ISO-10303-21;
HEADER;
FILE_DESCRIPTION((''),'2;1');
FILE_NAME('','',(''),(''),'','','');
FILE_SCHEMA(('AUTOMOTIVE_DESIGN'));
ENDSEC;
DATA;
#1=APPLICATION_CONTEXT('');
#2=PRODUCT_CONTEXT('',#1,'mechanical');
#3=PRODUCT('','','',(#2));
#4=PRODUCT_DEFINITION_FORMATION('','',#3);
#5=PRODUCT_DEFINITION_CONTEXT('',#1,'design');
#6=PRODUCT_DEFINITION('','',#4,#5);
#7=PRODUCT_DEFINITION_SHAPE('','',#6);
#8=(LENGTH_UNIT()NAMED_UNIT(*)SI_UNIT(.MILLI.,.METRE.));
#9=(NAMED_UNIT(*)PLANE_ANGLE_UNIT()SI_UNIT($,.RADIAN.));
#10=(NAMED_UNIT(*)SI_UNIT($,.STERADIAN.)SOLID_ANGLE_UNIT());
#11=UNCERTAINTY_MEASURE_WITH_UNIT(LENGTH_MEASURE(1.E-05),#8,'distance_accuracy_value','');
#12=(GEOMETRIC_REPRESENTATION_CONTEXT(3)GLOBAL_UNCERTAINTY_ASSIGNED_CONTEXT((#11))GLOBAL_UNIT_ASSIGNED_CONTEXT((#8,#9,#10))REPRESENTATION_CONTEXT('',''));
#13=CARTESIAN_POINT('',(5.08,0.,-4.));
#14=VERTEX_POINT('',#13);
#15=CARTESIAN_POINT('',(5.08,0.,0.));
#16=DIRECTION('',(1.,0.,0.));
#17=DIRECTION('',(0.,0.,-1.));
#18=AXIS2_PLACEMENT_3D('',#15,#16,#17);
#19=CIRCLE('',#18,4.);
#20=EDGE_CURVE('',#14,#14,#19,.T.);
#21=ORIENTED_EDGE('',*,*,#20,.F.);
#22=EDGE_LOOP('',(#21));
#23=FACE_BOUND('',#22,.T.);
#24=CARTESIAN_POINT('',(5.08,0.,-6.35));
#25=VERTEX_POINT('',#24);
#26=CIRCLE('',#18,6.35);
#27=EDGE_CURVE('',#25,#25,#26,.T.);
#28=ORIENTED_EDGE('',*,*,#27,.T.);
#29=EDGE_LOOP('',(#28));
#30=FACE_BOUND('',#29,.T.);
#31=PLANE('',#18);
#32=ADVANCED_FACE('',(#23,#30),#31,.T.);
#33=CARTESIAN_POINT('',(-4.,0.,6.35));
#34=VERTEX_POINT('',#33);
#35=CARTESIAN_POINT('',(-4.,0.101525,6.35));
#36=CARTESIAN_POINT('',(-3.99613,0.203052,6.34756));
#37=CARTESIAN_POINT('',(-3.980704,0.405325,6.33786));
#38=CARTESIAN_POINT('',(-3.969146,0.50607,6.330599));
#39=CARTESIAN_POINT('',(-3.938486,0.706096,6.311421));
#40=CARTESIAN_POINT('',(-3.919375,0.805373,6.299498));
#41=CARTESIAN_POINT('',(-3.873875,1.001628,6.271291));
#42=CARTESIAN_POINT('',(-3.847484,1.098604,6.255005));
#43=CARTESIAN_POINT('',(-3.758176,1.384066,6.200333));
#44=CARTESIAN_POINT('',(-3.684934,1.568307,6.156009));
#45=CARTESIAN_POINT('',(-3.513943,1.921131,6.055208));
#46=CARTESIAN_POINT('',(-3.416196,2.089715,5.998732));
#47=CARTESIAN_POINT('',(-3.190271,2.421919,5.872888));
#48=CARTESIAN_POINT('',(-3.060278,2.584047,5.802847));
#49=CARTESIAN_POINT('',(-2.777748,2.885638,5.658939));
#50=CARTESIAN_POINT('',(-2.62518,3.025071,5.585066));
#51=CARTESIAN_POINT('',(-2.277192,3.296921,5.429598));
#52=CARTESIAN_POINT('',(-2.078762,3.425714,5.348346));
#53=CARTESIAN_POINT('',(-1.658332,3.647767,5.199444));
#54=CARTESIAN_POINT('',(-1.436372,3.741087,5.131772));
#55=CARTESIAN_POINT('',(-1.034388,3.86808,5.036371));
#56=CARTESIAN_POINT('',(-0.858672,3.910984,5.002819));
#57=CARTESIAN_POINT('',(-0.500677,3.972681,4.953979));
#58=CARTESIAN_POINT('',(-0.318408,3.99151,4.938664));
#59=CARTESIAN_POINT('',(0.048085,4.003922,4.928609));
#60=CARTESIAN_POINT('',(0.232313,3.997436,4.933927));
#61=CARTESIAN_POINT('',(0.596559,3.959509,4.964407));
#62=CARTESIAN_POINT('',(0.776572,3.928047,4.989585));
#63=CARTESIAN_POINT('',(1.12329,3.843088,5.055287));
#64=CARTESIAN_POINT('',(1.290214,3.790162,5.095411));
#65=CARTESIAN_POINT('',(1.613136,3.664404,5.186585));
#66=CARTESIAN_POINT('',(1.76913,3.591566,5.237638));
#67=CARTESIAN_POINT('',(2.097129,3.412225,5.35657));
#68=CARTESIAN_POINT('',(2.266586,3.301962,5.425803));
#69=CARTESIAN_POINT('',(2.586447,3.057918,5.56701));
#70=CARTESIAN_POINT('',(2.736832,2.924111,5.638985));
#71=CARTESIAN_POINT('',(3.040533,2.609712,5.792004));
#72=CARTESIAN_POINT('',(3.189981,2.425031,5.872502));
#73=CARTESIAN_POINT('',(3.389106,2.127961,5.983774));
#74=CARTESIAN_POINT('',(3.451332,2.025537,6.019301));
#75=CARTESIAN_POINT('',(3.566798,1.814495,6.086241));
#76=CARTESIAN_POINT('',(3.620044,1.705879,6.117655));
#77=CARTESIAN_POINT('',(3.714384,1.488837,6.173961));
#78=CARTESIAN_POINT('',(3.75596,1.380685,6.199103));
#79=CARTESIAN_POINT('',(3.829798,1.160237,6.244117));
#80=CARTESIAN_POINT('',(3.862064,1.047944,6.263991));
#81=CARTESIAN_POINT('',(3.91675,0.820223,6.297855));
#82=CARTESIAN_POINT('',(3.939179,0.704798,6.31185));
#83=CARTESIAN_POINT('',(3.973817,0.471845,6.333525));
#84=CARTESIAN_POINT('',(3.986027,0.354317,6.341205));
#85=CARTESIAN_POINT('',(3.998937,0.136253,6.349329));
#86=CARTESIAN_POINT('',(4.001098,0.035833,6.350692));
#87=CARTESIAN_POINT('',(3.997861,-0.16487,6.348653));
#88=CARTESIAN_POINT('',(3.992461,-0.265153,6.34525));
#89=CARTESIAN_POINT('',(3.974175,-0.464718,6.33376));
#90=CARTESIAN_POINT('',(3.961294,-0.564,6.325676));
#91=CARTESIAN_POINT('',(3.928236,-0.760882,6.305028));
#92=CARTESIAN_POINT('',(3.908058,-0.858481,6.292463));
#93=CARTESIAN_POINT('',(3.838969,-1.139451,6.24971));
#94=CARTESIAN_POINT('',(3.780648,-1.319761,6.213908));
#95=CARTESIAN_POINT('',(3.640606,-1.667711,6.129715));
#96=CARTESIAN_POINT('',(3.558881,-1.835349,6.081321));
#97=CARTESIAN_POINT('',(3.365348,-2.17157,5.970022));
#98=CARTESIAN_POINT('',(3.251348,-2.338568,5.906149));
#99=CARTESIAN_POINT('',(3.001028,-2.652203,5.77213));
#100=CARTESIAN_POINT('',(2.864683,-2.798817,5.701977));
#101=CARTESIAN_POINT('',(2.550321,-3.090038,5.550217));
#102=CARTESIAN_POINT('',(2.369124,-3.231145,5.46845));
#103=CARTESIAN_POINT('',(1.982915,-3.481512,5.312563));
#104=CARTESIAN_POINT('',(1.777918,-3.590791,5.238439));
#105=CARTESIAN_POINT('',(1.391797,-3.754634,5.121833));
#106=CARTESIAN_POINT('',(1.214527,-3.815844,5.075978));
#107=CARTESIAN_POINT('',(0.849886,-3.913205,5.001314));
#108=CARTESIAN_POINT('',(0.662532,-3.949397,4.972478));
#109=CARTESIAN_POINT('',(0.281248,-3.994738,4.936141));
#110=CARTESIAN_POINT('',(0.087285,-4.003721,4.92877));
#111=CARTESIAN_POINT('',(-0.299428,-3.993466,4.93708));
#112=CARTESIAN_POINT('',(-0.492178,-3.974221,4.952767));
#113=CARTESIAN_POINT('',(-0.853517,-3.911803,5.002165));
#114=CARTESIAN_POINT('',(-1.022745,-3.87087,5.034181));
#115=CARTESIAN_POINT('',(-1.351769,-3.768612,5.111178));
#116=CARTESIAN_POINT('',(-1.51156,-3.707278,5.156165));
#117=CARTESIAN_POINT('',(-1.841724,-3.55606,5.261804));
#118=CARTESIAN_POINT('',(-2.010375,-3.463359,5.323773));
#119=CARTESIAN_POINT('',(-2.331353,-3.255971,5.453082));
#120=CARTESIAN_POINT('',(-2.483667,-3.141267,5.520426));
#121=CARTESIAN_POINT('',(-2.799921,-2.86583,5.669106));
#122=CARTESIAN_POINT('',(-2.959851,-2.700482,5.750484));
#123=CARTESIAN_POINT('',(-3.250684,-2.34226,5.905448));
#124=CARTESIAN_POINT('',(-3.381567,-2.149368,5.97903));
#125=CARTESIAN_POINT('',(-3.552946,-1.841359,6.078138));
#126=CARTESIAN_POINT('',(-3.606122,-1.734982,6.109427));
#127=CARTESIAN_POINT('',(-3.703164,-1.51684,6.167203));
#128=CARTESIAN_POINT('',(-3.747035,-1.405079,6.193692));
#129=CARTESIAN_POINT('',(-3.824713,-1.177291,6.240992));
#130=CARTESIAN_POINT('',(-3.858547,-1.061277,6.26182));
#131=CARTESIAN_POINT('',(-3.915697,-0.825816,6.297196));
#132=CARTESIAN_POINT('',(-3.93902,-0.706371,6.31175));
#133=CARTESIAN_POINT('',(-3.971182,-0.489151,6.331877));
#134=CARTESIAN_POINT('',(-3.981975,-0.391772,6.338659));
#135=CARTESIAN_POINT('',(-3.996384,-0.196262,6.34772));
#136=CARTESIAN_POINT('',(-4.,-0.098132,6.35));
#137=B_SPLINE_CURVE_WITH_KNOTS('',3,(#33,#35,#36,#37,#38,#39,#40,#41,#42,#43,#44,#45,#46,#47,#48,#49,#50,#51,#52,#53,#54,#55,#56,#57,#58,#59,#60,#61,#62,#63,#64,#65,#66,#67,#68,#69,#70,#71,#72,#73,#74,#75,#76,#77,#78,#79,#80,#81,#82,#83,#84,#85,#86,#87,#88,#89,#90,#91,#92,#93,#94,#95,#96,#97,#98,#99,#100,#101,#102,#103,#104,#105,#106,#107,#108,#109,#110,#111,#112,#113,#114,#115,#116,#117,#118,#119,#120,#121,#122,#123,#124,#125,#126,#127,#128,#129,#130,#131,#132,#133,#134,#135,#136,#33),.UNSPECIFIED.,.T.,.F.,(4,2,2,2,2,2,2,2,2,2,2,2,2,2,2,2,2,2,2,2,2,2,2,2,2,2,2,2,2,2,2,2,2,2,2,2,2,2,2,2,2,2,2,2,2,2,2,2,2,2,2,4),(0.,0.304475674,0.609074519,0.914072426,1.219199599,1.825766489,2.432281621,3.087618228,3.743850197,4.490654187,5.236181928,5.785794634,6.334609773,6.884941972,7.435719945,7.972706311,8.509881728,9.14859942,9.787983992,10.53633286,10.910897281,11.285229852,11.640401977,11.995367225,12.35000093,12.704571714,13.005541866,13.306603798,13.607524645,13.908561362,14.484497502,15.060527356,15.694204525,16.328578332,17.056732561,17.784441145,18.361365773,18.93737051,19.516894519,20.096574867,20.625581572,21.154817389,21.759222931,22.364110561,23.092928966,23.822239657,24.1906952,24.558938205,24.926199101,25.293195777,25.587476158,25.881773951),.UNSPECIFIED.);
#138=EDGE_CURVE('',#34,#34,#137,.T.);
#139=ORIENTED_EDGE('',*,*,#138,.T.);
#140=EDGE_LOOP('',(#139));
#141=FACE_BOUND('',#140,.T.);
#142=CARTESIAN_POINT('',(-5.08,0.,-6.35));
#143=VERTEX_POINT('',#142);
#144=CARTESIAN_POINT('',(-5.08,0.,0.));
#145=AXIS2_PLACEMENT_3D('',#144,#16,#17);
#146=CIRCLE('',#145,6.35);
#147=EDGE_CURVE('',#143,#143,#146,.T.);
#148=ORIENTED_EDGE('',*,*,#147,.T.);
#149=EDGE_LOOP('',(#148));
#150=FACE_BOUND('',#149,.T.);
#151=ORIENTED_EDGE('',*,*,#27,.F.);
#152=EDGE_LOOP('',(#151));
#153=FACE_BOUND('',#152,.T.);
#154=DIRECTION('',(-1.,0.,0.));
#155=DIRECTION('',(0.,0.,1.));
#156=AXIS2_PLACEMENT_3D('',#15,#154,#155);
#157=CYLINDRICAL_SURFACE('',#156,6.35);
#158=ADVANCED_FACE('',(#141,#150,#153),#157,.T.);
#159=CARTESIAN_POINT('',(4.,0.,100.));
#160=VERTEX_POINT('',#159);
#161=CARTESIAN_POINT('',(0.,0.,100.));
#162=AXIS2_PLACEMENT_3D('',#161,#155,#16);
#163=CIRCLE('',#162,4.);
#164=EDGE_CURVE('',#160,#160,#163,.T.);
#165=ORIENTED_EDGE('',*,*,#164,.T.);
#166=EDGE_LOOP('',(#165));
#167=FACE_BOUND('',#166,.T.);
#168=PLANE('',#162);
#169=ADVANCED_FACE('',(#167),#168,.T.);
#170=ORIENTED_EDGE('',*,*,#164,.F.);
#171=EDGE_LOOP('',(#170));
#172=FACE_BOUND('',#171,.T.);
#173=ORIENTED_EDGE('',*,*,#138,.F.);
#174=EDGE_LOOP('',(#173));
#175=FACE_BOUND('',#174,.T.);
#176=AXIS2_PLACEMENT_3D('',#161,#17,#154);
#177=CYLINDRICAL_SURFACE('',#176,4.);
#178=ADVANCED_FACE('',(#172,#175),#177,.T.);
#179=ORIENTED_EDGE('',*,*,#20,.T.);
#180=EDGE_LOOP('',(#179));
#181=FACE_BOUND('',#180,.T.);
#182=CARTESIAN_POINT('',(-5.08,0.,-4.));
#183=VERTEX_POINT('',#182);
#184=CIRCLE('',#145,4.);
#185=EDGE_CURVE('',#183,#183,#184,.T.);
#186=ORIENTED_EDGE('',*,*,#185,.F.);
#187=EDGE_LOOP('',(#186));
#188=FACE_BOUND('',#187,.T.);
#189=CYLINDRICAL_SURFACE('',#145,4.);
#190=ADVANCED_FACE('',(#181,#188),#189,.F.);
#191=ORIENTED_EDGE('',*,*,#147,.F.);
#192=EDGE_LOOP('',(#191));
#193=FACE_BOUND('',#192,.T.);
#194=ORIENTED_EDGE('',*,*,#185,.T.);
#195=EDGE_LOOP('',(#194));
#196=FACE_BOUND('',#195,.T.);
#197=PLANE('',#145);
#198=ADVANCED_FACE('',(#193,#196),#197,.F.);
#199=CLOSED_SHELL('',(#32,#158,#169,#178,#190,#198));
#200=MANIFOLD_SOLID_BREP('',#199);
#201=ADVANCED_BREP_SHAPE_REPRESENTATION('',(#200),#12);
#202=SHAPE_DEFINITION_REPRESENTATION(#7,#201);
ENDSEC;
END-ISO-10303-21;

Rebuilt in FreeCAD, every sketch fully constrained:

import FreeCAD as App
import Part
import Sketcher
from FreeCAD import Vector

doc = App.newDocument("Part")
body = doc.addObject("PartDesign::Body", "Body")

# Sketch on XY plane
sketch1 = body.newObject("Sketcher::SketchObject", "Sketch")
sketch1.AttachmentSupport = (doc.getObject("XY_Plane"), [""])
sketch1.MapMode = "FlatFace"
sketch1.addGeometry(Part.Circle(Vector(0, 0, 0), Vector(0, 0, 1), 4), False)
sketch1.addConstraint([
    Sketcher.Constraint("Coincident", 0, 3, -1, 1),
    Sketcher.Constraint("Diameter", 0, 8.0),
])
pad1 = body.newObject("PartDesign::Pad", "Pad")
pad1.Profile = sketch1
pad1.Length = 100

# Sketch on YZ plane
sketch2 = body.newObject("Sketcher::SketchObject", "Sketch001")
sketch2.AttachmentSupport = (doc.getObject("YZ_Plane"), [""])
sketch2.MapMode = "FlatFace"
sketch2.addGeometry(Part.Circle(Vector(0, 0, 0), Vector(0, 0, 1), 6), False)
sketch2.addConstraint([
    Sketcher.Constraint("Coincident", 0, 3, -1, 1),
    Sketcher.Constraint("Diameter", 0, 12.7),
])
pad2 = body.newObject("PartDesign::Pad", "Pad001")
pad2.Profile = sketch2
pad2.Length = 10.16
pad2.Midplane = True

# Sketch on YZ plane
sketch3 = body.newObject("Sketcher::SketchObject", "Sketch002")
sketch3.AttachmentSupport = (doc.getObject("YZ_Plane"), [""])
sketch3.MapMode = "FlatFace"
sketch3.addGeometry(Part.Circle(Vector(0, 0, 0), Vector(0, 0, 1), 4), False)
sketch3.addConstraint([
    Sketcher.Constraint("Coincident", 0, 3, -1, 1),
    Sketcher.Constraint("Diameter", 0, 8.0),
])
pocket1 = body.newObject("PartDesign::Pocket", "Pocket")
pocket1.Profile = sketch3
pocket1.Length = 10.16
pocket1.Midplane = True

doc.recompute()
